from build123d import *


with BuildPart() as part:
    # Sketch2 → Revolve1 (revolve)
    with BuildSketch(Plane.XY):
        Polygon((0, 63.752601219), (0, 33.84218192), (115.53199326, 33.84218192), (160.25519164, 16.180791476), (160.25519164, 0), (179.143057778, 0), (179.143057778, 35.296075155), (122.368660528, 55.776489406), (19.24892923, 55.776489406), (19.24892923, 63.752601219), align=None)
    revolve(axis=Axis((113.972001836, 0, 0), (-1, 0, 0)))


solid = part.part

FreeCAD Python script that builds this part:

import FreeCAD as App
import Part
import Sketcher

doc = App.newDocument("Part")
body = doc.addObject("PartDesign::Body", "Body")

# Sketch on XY plane
sketch1 = body.newObject("Sketcher::SketchObject", "Sketch")
sketch1.AttachmentSupport = (doc.getObject("XY_Plane"), [""])
sketch1.MapMode = "FlatFace"
sketch1.addGeometry([
    Part.LineSegment(App.Vector(0, 64, 0), App.Vector(0, 34, 0)),  # 0
    Part.LineSegment(App.Vector(0, 34, 0), App.Vector(116, 34, 0)),  # 1
    Part.LineSegment(App.Vector(116, 34, 0), App.Vector(160, 16, 0)),  # 2
    Part.LineSegment(App.Vector(160, 16, 0), App.Vector(160, 0, 0)),  # 3
    Part.LineSegment(App.Vector(160, 0, 0), App.Vector(179, 0, 0)),  # 4
    Part.LineSegment(App.Vector(179, 0, 0), App.Vector(179, 35, 0)),  # 5
    Part.LineSegment(App.Vector(179, 35, 0), App.Vector(122, 56, 0)),  # 6
    Part.LineSegment(App.Vector(122, 56, 0), App.Vector(19, 56, 0)),  # 7
    Part.LineSegment(App.Vector(19, 56, 0), App.Vector(19, 64, 0)),  # 8
    Part.LineSegment(App.Vector(19, 64, 0), App.Vector(0, 64, 0)),  # 9
], False)
sketch1.addConstraint([
    Sketcher.Constraint("Coincident", 0, 2, 1, 1),
    Sketcher.Constraint("Coincident", 1, 2, 2, 1),
    Sketcher.Constraint("Coincident", 2, 2, 3, 1),
    Sketcher.Constraint("Coincident", 3, 2, 4, 1),
    Sketcher.Constraint("Coincident", 4, 2, 5, 1),
    Sketcher.Constraint("Coincident", 5, 2, 6, 1),
    Sketcher.Constraint("Coincident", 6, 2, 7, 1),
    Sketcher.Constraint("Coincident", 7, 2, 8, 1),
    Sketcher.Constraint("Coincident", 8, 2, 9, 1),
    Sketcher.Constraint("Coincident", 9, 2, 0, 1),
    Sketcher.Constraint("Vertical", 0),
    Sketcher.Constraint("Horizontal", 1),
    Sketcher.Constraint("Vertical", 3),
    Sketcher.Constraint("Horizontal", 4),
    Sketcher.Constraint("Vertical", 5),
    Sketcher.Constraint("Horizontal", 7),
    Sketcher.Constraint("Vertical", 8),
    Sketcher.Constraint("Horizontal", 9),
    Sketcher.Constraint("PointOnObject", 0, 2, -2),
    Sketcher.Constraint("PointOnObject", 3, 2, -1),
    Sketcher.Constraint("DistanceX", 7, 2, 7, 1, 103.119731),
    Sketcher.Constraint("DistanceX", 9, 2, 9, 1, 19.248929),
    Sketcher.Constraint("DistanceY", 0, 2, 0, 1, 29.910419),
    Sketcher.Constraint("DistanceY", 3, 2, 3, 1, 16.180791),
    Sketcher.Constraint("DistanceY", 8, 1, 8, 2, 7.976112),
    Sketcher.Constraint("DistanceY", -1, 1, 8, 2, 63.752601),
    Sketcher.Constraint("DistanceX", 1, 2, 2, 2, 44.723198),
    Sketcher.Constraint("DistanceX", 1, 1, 1, 2, 115.531993),
    Sketcher.Constraint("DistanceX", 4, 1, 4, 2, 18.887866),
    Sketcher.Constraint("DistanceY", 5, 1, 5, 2, 35.296075),
])
revolution = body.newObject("PartDesign::Revolution", "Revolution")
revolution.Profile = sketch1
revolution.ReferenceAxis = (sketch1, ["H_Axis"])
revolution.Angle = 360

doc.recompute()
